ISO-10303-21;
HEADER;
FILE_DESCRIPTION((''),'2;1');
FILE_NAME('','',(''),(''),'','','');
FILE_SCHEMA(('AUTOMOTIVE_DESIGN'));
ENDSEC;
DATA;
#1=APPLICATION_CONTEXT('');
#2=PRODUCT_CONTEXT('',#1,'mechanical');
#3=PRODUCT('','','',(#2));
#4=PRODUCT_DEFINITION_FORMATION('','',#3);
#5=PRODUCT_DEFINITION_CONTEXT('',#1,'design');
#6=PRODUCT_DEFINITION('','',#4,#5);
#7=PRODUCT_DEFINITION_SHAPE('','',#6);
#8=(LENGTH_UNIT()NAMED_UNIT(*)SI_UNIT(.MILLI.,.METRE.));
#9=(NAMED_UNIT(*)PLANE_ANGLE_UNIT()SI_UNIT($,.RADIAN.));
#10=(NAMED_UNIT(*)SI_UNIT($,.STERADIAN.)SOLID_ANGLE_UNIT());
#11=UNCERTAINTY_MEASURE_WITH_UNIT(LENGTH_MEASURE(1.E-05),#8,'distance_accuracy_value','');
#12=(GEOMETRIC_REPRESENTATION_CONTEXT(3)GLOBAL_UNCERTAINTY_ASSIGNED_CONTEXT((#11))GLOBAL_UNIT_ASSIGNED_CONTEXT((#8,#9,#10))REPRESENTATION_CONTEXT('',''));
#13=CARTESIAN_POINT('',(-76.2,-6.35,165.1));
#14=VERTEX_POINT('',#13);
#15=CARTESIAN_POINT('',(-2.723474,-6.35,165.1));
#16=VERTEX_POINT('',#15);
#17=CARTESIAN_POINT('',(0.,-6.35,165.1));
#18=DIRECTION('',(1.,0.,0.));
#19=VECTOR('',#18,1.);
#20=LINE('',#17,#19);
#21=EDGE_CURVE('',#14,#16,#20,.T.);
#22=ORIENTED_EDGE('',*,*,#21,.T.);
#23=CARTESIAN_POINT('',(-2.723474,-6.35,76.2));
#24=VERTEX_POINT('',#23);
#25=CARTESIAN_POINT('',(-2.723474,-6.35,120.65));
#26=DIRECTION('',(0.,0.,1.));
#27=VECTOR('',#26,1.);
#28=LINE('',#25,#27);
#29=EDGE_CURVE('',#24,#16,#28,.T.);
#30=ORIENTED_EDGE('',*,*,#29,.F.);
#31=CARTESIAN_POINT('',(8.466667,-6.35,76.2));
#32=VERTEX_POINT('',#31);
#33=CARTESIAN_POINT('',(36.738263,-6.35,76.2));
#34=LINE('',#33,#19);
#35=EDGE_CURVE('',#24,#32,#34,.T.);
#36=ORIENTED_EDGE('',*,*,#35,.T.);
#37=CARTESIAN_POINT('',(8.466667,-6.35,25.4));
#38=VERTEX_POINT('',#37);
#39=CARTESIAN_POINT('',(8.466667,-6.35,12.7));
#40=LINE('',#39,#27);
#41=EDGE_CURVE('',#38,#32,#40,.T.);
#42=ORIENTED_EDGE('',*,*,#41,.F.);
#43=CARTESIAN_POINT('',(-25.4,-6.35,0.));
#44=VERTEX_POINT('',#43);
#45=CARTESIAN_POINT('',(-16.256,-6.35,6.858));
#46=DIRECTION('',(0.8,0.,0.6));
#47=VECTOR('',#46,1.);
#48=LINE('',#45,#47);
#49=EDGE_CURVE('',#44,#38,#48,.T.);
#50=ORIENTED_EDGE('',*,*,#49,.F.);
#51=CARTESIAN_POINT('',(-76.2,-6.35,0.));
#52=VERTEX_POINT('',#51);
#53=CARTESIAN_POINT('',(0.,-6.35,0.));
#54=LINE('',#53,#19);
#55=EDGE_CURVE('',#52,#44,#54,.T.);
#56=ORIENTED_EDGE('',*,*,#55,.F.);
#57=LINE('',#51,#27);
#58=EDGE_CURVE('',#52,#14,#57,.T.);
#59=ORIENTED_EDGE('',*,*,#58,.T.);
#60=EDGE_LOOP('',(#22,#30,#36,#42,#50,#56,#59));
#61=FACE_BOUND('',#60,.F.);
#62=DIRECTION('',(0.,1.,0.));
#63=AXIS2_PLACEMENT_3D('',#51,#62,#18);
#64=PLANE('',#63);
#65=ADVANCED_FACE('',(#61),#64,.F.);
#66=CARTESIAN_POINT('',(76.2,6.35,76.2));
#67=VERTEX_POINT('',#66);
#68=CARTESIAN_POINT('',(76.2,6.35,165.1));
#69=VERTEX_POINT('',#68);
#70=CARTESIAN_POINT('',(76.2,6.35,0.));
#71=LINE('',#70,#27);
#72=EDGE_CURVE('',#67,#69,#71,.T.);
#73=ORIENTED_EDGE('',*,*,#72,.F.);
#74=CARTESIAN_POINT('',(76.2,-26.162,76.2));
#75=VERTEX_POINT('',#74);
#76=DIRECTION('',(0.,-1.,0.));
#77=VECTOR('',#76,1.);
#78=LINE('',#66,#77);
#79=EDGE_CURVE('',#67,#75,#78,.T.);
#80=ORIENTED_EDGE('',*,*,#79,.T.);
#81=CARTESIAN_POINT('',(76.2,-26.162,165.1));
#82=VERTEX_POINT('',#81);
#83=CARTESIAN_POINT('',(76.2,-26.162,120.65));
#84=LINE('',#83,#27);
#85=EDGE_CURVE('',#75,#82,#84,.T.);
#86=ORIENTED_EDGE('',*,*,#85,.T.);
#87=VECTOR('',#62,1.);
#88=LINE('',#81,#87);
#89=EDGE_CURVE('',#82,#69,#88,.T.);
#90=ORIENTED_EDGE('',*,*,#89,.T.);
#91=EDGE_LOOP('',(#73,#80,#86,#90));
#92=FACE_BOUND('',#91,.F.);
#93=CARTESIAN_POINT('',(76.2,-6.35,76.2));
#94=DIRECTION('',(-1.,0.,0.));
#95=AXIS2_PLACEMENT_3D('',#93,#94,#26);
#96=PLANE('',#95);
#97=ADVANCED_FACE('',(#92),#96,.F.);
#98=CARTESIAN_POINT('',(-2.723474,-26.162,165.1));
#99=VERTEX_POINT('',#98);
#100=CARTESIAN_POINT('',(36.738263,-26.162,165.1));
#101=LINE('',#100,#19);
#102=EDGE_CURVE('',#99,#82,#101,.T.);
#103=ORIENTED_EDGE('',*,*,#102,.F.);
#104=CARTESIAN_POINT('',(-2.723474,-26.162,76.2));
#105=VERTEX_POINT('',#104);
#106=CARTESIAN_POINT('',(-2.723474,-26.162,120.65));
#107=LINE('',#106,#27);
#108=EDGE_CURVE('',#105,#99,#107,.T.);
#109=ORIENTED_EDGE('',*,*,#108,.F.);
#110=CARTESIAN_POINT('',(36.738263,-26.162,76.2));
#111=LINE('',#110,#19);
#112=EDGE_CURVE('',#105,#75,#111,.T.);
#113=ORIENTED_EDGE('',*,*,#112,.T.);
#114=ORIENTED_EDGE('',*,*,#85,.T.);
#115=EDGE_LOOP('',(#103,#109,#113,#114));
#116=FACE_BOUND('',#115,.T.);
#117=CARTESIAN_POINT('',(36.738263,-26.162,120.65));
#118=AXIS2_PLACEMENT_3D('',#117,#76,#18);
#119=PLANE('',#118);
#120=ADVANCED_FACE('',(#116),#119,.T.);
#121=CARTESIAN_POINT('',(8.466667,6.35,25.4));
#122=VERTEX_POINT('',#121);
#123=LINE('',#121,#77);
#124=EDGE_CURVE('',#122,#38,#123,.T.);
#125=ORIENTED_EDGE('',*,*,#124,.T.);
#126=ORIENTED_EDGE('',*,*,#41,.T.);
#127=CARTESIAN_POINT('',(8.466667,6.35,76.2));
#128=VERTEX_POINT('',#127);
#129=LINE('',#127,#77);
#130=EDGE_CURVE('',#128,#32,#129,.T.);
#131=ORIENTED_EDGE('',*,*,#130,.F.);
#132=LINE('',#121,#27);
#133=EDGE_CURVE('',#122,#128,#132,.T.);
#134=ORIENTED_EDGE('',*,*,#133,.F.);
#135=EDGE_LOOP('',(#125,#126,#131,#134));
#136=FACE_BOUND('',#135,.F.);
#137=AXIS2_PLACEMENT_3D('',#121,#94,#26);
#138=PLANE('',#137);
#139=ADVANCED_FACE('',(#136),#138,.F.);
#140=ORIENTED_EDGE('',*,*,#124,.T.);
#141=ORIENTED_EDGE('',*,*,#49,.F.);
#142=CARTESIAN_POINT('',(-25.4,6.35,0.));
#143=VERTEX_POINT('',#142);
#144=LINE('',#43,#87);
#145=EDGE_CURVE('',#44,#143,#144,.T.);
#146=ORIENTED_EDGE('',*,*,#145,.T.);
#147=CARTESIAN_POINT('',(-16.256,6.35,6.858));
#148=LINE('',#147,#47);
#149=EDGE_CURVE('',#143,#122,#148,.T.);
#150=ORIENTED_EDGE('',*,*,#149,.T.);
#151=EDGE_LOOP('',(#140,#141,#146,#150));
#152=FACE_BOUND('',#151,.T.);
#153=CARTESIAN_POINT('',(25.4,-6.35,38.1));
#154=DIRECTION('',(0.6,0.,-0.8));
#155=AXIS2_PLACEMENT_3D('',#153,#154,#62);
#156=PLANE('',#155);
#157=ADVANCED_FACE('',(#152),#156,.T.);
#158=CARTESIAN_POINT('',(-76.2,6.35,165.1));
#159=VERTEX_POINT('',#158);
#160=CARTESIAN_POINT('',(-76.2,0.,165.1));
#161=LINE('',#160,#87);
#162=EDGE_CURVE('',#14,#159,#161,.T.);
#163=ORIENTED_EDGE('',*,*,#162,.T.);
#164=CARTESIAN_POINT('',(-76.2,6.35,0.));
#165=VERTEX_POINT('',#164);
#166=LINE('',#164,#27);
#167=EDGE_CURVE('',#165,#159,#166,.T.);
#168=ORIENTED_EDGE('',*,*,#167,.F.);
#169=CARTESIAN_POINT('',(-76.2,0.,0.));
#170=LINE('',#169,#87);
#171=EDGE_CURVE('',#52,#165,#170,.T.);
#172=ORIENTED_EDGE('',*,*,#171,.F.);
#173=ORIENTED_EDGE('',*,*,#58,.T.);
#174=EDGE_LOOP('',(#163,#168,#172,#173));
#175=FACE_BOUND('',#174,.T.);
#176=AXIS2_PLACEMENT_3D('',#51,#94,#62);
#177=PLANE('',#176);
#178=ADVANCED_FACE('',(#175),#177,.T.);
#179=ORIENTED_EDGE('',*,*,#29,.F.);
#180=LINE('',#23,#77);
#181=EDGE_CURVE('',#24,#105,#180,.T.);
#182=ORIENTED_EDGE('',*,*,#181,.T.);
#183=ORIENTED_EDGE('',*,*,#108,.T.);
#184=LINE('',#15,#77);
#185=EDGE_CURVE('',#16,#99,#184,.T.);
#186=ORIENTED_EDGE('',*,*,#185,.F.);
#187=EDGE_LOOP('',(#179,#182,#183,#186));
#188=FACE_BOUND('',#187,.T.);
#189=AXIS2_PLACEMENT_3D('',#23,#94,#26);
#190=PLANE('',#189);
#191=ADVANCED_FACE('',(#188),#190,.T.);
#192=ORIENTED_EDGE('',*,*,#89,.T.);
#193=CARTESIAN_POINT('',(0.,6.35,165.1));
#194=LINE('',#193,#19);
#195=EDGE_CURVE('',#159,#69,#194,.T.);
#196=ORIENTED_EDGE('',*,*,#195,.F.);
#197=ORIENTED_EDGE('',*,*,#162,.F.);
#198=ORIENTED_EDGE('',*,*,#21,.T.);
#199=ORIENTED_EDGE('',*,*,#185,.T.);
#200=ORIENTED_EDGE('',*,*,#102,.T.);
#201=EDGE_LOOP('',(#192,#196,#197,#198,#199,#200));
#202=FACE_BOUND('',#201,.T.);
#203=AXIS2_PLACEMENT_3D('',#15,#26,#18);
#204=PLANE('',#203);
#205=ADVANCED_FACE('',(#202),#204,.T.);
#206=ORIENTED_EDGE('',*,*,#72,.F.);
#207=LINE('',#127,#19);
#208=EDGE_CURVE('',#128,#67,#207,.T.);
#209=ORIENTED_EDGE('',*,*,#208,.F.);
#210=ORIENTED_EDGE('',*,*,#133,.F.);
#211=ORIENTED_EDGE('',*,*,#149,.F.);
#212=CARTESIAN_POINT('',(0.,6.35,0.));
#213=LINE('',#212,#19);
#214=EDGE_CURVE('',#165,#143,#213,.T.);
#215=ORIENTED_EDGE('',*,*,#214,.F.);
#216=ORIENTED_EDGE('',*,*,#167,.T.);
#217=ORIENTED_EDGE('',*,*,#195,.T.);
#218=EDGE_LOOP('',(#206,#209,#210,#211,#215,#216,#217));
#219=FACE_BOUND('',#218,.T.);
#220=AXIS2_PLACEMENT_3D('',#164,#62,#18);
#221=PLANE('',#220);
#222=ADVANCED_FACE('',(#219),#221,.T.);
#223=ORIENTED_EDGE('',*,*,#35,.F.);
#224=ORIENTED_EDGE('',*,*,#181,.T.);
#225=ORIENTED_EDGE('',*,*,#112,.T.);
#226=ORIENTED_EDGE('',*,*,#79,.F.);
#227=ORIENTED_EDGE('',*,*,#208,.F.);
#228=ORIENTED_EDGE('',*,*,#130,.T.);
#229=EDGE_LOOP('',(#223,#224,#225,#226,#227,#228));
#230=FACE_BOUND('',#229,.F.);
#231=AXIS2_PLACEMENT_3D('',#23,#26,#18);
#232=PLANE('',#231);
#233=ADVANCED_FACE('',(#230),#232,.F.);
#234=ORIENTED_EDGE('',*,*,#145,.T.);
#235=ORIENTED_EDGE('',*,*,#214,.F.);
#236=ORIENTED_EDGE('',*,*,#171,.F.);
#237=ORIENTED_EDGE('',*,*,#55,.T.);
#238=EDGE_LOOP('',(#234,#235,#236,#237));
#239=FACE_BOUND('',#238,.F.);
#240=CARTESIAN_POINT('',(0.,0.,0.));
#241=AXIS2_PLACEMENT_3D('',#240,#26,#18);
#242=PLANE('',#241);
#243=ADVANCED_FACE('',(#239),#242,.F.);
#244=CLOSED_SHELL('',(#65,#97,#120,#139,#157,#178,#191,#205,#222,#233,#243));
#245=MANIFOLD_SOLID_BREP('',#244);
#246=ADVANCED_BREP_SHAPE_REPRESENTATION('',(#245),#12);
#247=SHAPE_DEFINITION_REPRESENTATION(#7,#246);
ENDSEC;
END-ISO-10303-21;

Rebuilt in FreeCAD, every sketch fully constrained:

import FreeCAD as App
import Part
import Sketcher

V = App.Vector
Q = App.Units.Quantity


def edges_at(feature, points):
    """Names of the edges that pass closest to the given points."""
    edges = feature.Shape.Edges
    near = lambda p: min(range(len(edges)), key=lambda i: edges[i].distToShape(Part.Vertex(*p))[0])
    return sorted({f"Edge{near(p) + 1}" for p in points})


def add_polygon(sketch, points):
    """Adds a closed chain of lines whose ends are joined by coincident constraints."""
    first, n = sketch.GeometryCount, len(points)
    for a, b in zip(points, points[1:] + points[:1]):
        sketch.addGeometry(Part.LineSegment(App.Vector(*a, 0), App.Vector(*b, 0)), False)
    for i in range(n):
        sketch.addConstraint(Sketcher.Constraint("Coincident", first + i, 2, first + (i + 1) % n, 1))

doc = App.newDocument("Part")
body = doc.addObject("PartDesign::Body", "Body")

# Sketch on XY plane
sketch1 = doc.addObject("Sketcher::SketchObject", "Sketch")
body.addObject(sketch1)
sketch1.AttachmentSupport = (doc.XY_Plane, [""])
sketch1.MapMode = "FlatFace"
add_polygon(sketch1, [(-76, 6), (-76, -6), (76, -6), (76, 6)])  # lines 0-3
sketch1.addConstraint([
    Sketcher.Constraint("Vertical", 0),
    Sketcher.Constraint("Horizontal", 1),
    Sketcher.Constraint("Vertical", 2),
    Sketcher.Constraint("Horizontal", 3),
    Sketcher.Constraint("Symmetric", 0, 2, 2, 2, -1, 1),
    Sketcher.Constraint("DistanceX", 1, 1, 1, 2, Q("6 in")),
    Sketcher.Constraint("DistanceY", 0, 2, 0, 1, Q("0.5 in")),
])
pad1 = doc.addObject("PartDesign::Pad", "Pad")
body.addObject(pad1)
pad1.Profile = sketch1
pad1.Length = Q("6.5 in")
doc.recompute()

chamfer = doc.addObject("PartDesign::Chamfer", "Chamfer")
body.addObject(chamfer)
chamfer.Base = (pad1, edges_at(pad1, [(76.2, 0, 0)]))
chamfer.ChamferType = "Two distances"
chamfer.Size = Q("4 in")
chamfer.Size2 = Q("3 in")
chamfer.FlipDirection = True

# Sketch on XZ plane
sketch2 = doc.addObject("Sketcher::SketchObject", "Sketch001")
body.addObject(sketch2)
sketch2.AttachmentSupport = (doc.XZ_Plane, [""])
sketch2.MapMode = "FlatFace"
sketch2.AttachmentOffset = App.Placement(V(0, 0, 0.25 * 25.4), App.Rotation())
add_polygon(sketch2, [(-3, 165), (-3, 76), (76, 76), (76, 165)])  # lines 0-3
sketch2.addConstraint([
    Sketcher.Constraint("Vertical", 0),
    Sketcher.Constraint("Horizontal", 1),
    Sketcher.Constraint("Vertical", 2),
    Sketcher.Constraint("Horizontal", 3),
    Sketcher.Constraint("DistanceY", 0, 2, 0, 1, Q("3.5 in")),
    Sketcher.Constraint("DistanceY", -1, 1, 0, 2, Q("3 in")),
    Sketcher.Constraint("DistanceX", -1, 1, 1, 2, Q("3 in")),
    Sketcher.Constraint("DistanceX", 1, 1, 1, 2, 78.923474),
])
pad2 = doc.addObject("PartDesign::Pad", "Pad001")
body.addObject(pad2)
pad2.Profile = sketch2
pad2.Length = Q("0.78 in")

# Sketch on XZ plane
sketch3 = doc.addObject("Sketcher::SketchObject", "Sketch002")
body.addObject(sketch3)
sketch3.AttachmentSupport = (doc.XZ_Plane, [""])
sketch3.MapMode = "FlatFace"
sketch3.AttachmentOffset = App.Placement(V(0, 0, -0.25 * 25.4), App.Rotation())
add_polygon(sketch3, [(8, 76), (76, 76), (8, 25)])  # lines 0-2
sketch3.addConstraint([
    Sketcher.Constraint("Horizontal", 0),
    Sketcher.Constraint("Vertical", 2),
    Sketcher.Constraint("DistanceY", 2, 1, 2, 2, Q("2 in")),
    Sketcher.Constraint("DistanceX", -1, 1, 0, 2, Q("3 in")),
    Sketcher.Constraint("DistanceY", -1, 1, 0, 2, Q("3 in")),
    Sketcher.Constraint("DistanceX", 0, 1, 0, 2, 67.733333),
])
pocket1 = doc.addObject("PartDesign::Pocket", "Pocket")
body.addObject(pocket1)
pocket1.Profile = sketch3
pocket1.Length = Q("1 in")
pocket1.Reversed = True

doc.recompute()
